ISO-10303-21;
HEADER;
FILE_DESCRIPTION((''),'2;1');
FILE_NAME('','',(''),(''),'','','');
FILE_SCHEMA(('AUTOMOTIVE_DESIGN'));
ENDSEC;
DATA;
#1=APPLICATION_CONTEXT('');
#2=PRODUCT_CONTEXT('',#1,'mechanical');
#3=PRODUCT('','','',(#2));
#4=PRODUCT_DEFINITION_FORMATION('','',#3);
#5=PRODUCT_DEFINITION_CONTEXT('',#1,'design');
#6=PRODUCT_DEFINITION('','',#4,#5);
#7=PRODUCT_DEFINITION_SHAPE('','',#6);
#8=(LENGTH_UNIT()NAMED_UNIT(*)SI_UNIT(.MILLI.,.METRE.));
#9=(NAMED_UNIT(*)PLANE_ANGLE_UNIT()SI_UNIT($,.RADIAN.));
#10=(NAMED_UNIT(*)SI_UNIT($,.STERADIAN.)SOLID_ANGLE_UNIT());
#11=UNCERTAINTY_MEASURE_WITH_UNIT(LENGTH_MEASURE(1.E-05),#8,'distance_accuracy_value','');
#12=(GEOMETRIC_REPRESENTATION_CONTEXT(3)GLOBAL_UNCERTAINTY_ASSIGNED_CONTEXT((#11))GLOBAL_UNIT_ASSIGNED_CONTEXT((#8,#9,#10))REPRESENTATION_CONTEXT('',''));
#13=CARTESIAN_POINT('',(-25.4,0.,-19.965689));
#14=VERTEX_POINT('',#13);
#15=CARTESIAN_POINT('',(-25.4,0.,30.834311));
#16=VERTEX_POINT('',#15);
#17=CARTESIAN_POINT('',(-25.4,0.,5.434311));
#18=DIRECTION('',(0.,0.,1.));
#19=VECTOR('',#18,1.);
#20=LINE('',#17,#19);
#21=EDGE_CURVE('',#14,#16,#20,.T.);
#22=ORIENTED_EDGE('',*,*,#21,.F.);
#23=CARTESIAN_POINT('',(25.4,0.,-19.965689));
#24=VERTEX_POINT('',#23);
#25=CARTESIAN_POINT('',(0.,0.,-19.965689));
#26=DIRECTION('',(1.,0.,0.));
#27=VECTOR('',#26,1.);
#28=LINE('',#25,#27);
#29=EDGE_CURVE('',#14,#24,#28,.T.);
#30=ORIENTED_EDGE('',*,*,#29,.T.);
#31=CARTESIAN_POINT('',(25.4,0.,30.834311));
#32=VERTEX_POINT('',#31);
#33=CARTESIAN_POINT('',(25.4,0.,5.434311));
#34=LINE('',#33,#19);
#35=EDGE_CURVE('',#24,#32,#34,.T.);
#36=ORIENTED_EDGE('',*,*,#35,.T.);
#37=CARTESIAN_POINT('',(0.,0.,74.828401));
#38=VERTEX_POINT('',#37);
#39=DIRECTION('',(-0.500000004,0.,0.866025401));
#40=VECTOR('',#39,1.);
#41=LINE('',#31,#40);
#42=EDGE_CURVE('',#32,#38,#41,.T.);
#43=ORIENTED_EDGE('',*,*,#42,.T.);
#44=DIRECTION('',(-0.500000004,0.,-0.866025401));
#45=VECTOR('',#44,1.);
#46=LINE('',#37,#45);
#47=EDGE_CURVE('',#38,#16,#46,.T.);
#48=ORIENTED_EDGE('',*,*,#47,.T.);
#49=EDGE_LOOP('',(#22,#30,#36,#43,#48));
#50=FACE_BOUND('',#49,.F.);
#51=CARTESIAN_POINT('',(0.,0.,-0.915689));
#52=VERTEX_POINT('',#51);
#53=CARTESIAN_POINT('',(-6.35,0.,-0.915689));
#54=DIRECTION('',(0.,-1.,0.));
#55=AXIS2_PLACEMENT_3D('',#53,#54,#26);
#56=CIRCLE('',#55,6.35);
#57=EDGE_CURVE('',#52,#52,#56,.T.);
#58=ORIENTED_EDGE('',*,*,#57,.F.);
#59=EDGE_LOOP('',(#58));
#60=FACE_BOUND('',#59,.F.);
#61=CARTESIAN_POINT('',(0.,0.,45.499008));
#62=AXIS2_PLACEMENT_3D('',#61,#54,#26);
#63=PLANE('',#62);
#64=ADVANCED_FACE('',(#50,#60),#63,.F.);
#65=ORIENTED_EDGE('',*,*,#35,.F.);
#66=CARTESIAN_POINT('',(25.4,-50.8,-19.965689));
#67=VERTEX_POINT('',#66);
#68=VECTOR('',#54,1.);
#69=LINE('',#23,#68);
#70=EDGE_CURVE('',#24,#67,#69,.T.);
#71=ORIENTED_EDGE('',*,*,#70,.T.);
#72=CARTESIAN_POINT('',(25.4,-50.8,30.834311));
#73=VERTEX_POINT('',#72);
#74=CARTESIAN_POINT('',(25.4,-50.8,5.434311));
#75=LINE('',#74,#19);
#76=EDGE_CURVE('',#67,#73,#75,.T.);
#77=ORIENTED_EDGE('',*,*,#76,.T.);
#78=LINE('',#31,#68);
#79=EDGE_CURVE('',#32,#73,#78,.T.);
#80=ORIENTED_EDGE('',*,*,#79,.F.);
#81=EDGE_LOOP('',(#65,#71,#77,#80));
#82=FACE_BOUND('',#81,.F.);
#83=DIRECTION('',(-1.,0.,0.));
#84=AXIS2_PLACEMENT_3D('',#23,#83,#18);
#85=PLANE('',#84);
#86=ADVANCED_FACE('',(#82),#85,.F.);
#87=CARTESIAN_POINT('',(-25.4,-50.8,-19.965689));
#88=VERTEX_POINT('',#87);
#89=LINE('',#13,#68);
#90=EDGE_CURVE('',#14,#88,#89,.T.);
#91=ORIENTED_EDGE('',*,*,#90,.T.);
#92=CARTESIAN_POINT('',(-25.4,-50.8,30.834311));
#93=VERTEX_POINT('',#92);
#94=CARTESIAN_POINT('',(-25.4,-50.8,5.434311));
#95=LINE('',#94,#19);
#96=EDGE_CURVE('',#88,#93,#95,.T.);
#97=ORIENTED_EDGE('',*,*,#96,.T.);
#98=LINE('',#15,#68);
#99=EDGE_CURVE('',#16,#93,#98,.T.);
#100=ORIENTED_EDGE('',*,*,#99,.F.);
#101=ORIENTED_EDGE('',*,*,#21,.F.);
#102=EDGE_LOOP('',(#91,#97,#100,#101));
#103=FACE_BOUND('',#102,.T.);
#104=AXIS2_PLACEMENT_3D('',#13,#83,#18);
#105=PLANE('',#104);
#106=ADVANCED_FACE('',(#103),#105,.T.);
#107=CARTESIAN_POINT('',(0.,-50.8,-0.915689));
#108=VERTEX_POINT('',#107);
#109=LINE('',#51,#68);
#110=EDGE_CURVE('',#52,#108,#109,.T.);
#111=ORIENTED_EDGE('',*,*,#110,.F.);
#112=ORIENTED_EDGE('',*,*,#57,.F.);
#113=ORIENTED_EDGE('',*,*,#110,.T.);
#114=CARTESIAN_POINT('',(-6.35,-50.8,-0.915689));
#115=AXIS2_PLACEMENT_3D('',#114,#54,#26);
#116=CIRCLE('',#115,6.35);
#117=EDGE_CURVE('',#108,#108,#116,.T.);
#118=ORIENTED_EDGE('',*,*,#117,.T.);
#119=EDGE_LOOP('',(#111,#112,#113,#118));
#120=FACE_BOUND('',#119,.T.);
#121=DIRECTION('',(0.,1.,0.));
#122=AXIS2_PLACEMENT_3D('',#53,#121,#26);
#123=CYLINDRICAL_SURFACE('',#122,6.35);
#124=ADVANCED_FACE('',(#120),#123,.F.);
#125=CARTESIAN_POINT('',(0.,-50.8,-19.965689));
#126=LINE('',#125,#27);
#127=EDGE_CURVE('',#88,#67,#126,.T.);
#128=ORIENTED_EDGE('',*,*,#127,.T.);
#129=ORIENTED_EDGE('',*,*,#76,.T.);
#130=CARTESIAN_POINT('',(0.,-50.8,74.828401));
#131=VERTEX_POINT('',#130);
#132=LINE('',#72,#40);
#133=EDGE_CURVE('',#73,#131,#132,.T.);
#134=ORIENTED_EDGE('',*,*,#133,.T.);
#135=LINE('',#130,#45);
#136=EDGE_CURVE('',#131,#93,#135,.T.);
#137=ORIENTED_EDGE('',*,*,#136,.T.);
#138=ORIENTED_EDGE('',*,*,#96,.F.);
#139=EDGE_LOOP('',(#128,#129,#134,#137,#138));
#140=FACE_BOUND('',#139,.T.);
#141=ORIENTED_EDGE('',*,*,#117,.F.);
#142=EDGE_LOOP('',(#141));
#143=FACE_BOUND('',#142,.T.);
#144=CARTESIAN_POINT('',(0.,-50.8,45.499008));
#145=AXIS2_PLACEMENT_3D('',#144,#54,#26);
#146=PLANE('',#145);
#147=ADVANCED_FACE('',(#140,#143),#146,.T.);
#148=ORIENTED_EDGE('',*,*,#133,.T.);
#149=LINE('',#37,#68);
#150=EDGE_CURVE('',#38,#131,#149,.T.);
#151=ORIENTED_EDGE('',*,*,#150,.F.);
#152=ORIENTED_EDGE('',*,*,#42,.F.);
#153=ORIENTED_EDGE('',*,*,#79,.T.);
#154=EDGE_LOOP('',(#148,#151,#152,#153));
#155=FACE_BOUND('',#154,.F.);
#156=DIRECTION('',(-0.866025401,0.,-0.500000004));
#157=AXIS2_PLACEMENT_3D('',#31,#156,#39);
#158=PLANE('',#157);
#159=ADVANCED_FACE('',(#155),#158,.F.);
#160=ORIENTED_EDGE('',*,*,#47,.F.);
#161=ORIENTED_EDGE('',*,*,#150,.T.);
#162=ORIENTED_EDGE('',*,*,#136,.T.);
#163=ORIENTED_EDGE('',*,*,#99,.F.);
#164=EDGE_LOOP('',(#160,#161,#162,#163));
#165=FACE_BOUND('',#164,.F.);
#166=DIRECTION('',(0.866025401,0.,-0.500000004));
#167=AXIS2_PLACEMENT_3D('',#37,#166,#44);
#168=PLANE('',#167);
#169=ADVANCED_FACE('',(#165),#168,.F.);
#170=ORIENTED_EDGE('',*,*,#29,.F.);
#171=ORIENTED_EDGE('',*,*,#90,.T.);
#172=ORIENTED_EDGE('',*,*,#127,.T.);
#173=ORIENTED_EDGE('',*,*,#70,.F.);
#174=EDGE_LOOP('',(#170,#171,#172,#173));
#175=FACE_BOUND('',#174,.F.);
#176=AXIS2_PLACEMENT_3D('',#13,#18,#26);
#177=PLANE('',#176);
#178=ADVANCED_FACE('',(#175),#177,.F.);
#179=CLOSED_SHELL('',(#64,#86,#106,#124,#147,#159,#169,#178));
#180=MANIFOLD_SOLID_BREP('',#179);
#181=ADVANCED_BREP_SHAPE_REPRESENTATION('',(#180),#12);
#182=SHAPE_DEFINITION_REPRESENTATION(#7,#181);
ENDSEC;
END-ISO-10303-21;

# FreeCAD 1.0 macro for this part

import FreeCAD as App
import Part
import Sketcher
from FreeCAD import Vector
Q = App.Units.Quantity

doc = App.newDocument("Part")
params = doc.addObject("Spreadsheet::Sheet", "Params")
for row, (alias, value) in enumerate([
    ("sketch1_diameter", "0.5 in"),
    ("sketch1_width", "2 in"),
    ("sketch1_length", "2 in"),
    ("pad1_length", "2 in"),
], start=1):
    params.set(f"A{row}", alias)
    params.set(f"B{row}", "=" + value)
    params.setAlias(f"B{row}", alias)

body = doc.addObject("PartDesign::Body", "Body")

# Sketch on XZ plane
sketch1 = doc.addObject("Sketcher::SketchObject", "Sketch")
body.addObject(sketch1)
sketch1.AttachmentSupport = (doc.XZ_Plane, [""])
sketch1.MapMode = "FlatFace"
sketch1.addGeometry(Part.LineSegment(Vector(0, 75, 0), Vector(-25, 31, 0)), False)
sketch1.addGeometry(Part.LineSegment(Vector(-25, 31, 0), Vector(-25, -20, 0)), False)
sketch1.addGeometry(Part.LineSegment(Vector(-25, -20, 0), Vector(25, -20, 0)), False)
sketch1.addGeometry(Part.LineSegment(Vector(25, -20, 0), Vector(25, 31, 0)), False)
sketch1.addGeometry(Part.LineSegment(Vector(25, 31, 0), Vector(0, 75, 0)), False)
sketch1.addGeometry(Part.Circle(Vector(-6, -1, 0), Vector(0, 0, 1), 6), False)
sketch1.addConstraint(Sketcher.Constraint("Coincident", 0, 2, 1, 1))
sketch1.addConstraint(Sketcher.Constraint("Coincident", 1, 2, 2, 1))
sketch1.addConstraint(Sketcher.Constraint("Coincident", 2, 2, 3, 1))
sketch1.addConstraint(Sketcher.Constraint("Coincident", 3, 2, 4, 1))
sketch1.addConstraint(Sketcher.Constraint("Coincident", 4, 2, 0, 1))
sketch1.addConstraint(Sketcher.Constraint("Vertical", 1))
sketch1.addConstraint(Sketcher.Constraint("Horizontal", 2))
sketch1.addConstraint(Sketcher.Constraint("Vertical", 3))
sketch1.addConstraint(Sketcher.Constraint("Symmetric", 0, 2, 3, 2, -2))
sketch1.addConstraint(Sketcher.Constraint("PointOnObject", 4, 2, -2))
sketch1.addConstraint(Sketcher.Constraint("Equal", 2, 1))
sketch1.addConstraint(Sketcher.Constraint("Diameter", 5, Q("0.5 in")))
sketch1.addConstraint(Sketcher.Constraint("DistanceX", 2, 1, 2, 2, Q("2 in")))
sketch1.addConstraint(Sketcher.Constraint("Distance", 0, Q("2 in")))
sketch1.addConstraint(Sketcher.Constraint("DistanceX", 5, 3, -1, 1, Q("0.25 in")))
sketch1.addConstraint(Sketcher.Constraint("DistanceY", 5, 3, 0, 2, Q("1.25 in")))
sketch1.addConstraint(Sketcher.Constraint("DistanceY", -1, 1, 4, 2, Q("2.946 in")))
sketch1.setExpression("Constraints[11]", "Params.sketch1_diameter")
sketch1.setExpression("Constraints[12]", "Params.sketch1_width")
sketch1.setExpression("Constraints[13]", "Params.sketch1_length")
pad1 = doc.addObject("PartDesign::Pad", "Pad")
body.addObject(pad1)
pad1.Profile = sketch1
pad1.setExpression("Length", "Params.pad1_length")

doc.recompute()
